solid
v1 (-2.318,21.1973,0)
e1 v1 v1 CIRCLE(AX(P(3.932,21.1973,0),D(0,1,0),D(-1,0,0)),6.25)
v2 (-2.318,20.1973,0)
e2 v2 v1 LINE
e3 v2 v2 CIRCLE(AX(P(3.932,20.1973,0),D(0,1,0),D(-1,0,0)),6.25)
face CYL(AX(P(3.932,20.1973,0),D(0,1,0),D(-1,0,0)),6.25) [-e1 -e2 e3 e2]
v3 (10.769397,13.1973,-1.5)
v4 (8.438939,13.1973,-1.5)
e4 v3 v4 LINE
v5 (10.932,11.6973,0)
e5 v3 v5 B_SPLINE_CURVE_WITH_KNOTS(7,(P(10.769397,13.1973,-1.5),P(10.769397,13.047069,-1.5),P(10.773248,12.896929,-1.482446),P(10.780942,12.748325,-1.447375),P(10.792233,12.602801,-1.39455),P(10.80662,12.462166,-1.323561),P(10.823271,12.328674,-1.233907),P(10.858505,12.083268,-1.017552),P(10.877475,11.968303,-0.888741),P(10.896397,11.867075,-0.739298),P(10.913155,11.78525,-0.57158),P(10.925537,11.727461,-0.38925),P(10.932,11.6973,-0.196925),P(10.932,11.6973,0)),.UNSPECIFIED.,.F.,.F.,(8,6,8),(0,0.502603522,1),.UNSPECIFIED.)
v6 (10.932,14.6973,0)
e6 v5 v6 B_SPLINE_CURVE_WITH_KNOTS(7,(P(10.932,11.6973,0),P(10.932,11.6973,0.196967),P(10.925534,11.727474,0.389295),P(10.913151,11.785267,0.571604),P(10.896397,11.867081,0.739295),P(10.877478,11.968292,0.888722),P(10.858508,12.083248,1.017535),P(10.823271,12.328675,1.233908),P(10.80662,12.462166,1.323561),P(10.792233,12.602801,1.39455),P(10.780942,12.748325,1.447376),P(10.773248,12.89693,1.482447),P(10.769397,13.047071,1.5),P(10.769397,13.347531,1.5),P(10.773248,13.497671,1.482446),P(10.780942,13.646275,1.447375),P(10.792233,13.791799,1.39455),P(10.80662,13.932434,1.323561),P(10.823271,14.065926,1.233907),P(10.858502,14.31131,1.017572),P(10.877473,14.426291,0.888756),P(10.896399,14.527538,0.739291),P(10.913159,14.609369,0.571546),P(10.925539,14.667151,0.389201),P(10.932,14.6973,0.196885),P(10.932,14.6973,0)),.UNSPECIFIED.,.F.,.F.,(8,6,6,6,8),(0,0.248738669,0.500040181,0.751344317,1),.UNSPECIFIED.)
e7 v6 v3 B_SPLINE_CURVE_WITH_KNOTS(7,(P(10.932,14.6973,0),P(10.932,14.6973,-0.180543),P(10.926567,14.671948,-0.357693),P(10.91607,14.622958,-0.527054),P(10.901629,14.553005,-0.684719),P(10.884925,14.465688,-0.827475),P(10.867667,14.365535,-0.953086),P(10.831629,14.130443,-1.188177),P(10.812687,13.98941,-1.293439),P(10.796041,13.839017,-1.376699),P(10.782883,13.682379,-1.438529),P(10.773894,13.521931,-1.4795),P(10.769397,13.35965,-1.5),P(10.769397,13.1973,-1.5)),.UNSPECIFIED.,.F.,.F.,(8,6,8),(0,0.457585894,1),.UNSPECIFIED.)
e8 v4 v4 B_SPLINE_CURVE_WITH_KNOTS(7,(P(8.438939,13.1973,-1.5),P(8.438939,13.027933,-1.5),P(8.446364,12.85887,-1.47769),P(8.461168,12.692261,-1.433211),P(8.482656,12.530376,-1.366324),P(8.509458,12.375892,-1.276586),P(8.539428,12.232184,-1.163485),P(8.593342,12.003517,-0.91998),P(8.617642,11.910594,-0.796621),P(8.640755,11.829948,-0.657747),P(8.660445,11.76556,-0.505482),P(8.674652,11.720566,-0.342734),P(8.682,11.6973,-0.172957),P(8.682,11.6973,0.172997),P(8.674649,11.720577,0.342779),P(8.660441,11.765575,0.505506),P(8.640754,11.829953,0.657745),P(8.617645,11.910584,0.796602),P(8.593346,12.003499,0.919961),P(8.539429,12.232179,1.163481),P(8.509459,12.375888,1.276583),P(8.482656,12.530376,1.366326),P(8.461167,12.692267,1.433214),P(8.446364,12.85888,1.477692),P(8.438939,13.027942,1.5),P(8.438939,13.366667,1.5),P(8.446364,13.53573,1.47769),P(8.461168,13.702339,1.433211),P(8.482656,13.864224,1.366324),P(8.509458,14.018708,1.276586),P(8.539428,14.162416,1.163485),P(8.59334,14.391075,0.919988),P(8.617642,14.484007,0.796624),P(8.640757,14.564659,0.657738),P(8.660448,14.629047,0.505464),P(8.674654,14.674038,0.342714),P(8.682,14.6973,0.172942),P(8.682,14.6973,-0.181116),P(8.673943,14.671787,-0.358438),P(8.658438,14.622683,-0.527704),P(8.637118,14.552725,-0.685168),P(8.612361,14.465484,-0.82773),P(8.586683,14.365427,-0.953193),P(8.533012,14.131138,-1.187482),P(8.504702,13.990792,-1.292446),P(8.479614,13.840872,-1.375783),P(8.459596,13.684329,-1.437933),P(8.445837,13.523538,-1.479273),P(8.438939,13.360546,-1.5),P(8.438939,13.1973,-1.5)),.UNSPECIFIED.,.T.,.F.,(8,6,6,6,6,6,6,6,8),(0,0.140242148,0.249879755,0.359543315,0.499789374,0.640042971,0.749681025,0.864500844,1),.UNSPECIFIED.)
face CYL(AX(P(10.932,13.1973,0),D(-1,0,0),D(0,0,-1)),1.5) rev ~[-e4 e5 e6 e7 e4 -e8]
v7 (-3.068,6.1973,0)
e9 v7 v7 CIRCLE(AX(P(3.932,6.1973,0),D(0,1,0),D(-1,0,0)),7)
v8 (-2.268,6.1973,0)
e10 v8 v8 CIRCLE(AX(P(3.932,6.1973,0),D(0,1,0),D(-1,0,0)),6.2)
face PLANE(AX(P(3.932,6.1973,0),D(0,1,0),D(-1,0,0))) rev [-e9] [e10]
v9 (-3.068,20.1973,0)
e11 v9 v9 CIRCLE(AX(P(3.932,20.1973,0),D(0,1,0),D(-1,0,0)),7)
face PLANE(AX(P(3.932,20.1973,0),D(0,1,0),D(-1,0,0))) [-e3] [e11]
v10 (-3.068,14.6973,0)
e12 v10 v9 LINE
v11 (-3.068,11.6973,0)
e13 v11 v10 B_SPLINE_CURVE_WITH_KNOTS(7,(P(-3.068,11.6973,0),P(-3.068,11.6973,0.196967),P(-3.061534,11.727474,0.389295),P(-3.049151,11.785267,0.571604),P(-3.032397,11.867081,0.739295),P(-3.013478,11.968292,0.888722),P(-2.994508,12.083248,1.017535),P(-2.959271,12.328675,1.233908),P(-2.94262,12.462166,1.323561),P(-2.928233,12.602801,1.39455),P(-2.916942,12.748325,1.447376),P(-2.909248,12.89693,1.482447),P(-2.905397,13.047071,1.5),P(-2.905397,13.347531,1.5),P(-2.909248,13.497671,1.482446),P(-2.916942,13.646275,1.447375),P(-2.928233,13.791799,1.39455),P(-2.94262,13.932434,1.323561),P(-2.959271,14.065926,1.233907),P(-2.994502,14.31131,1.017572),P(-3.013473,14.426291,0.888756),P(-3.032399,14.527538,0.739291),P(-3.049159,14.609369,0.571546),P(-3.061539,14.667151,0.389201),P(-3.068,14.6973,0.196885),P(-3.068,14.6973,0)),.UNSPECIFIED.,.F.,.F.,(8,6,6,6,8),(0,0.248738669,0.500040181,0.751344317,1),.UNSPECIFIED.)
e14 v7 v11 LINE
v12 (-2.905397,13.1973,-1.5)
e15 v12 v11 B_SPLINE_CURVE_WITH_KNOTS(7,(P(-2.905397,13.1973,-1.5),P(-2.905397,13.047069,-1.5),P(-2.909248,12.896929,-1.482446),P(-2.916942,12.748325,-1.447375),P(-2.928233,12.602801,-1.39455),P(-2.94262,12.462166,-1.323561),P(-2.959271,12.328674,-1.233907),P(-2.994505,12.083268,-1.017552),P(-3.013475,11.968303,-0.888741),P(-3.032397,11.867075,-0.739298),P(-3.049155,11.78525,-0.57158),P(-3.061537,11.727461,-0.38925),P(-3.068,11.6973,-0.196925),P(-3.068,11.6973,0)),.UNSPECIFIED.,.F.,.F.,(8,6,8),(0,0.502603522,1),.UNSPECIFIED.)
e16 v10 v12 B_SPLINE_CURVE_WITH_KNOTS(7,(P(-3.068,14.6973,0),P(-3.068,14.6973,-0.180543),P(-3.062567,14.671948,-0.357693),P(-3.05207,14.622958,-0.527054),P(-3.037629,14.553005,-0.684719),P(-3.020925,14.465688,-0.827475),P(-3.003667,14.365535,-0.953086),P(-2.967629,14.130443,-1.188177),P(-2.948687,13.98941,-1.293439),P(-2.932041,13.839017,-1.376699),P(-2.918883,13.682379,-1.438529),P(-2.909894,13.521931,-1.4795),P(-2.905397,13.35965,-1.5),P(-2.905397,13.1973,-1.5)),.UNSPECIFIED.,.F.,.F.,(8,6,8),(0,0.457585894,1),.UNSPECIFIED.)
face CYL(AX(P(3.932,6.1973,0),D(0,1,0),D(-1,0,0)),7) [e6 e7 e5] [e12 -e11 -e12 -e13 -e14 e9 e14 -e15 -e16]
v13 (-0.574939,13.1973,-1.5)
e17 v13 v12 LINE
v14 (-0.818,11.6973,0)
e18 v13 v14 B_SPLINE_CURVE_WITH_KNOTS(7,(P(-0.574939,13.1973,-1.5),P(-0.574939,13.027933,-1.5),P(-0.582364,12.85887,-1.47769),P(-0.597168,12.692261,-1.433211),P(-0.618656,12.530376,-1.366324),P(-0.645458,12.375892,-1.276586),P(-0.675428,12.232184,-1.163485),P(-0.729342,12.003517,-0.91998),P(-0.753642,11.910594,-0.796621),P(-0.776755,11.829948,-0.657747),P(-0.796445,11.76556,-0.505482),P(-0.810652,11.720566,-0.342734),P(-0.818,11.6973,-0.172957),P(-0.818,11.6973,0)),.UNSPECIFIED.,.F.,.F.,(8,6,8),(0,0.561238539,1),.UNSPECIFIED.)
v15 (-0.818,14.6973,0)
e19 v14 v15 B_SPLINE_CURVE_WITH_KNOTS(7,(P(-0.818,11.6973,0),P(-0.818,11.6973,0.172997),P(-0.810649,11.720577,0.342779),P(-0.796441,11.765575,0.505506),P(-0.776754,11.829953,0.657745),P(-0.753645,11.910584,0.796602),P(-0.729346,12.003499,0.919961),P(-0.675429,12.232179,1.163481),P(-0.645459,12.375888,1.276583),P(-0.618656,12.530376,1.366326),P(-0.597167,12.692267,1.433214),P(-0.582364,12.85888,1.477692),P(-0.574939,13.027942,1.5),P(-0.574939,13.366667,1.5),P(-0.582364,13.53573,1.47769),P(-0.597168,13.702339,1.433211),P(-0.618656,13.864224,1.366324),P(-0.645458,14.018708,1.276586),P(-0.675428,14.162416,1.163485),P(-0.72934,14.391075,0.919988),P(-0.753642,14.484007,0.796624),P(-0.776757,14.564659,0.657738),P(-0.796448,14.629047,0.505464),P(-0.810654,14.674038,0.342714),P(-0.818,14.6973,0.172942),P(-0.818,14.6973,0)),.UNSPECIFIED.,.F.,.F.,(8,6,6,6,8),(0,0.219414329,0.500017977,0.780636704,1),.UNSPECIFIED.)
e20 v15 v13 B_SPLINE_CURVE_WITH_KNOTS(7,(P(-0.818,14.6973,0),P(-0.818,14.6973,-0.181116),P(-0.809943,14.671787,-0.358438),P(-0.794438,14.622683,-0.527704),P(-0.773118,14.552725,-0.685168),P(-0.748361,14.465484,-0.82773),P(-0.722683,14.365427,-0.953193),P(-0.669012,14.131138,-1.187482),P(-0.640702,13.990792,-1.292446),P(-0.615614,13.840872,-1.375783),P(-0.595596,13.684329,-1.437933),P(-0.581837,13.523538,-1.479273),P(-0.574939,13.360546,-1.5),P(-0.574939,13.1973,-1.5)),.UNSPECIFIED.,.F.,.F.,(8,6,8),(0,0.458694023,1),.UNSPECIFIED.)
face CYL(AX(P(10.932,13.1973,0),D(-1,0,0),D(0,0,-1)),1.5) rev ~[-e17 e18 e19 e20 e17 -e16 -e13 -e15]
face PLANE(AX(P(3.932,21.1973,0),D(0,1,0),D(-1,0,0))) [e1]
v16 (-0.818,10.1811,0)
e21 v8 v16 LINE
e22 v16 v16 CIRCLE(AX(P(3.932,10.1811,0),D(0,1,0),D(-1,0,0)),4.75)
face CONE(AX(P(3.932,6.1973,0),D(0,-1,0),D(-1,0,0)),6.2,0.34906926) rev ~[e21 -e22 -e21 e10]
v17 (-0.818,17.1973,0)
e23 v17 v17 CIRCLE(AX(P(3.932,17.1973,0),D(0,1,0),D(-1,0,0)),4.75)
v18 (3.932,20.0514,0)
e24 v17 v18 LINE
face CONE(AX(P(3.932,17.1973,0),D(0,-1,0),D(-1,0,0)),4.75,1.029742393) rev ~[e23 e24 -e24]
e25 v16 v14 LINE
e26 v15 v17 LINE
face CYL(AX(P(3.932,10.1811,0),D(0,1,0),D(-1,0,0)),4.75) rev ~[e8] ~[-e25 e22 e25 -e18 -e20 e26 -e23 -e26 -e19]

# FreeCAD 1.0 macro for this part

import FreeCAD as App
import Part
import Sketcher
Q = App.Units.Quantity


def add_polygon(sketch, points):
    """Adds a closed chain of lines whose ends are joined by coincident constraints."""
    first, n = sketch.GeometryCount, len(points)
    for a, b in zip(points, points[1:] + points[:1]):
        sketch.addGeometry(Part.LineSegment(App.Vector(*a, 0), App.Vector(*b, 0)), False)
    for i in range(n):
        sketch.addConstraint(Sketcher.Constraint("Coincident", first + i, 2, first + (i + 1) % n, 1))

doc = App.newDocument("Part")
body = doc.addObject("PartDesign::Body", "Body")

# Sketch on XY plane
sketch1 = body.newObject("Sketcher::SketchObject", "Sketch")
sketch1.AttachmentSupport = (doc.getObject("XY_Plane"), [""])
sketch1.MapMode = "FlatFace"
add_polygon(sketch1, [(-3.1, 20.2), (-3.1, 6.2), (-2.3, 6.2), (-0.8, 10.2), (-0.8, 17.2), (3.9, 20.1), (3.9, 21.2), (-2.3, 21.2), (-2.3, 20.2)])  # lines 0-8
sketch1.addGeometry(Part.LineSegment(App.Vector(3.9, 6.2, 0), App.Vector(3.9, 21.2, 0)), True)  # axis
sketch1.addConstraint([
    Sketcher.Constraint("Vertical", 0),
    Sketcher.Constraint("Horizontal", 1),
    Sketcher.Constraint("Vertical", 3),
    Sketcher.Constraint("Vertical", 5),
    Sketcher.Constraint("Horizontal", 6),
    Sketcher.Constraint("Vertical", 7),
    Sketcher.Constraint("Horizontal", 8),
    Sketcher.Constraint("Vertical", 9),
    Sketcher.Constraint("Coincident", 9, 2, 5, 2),
    Sketcher.Constraint("Horizontal", 1, 2, 9, 1),
    Sketcher.Constraint("DistanceY", 0, 2, 0, 1, 14.0),
    Sketcher.Constraint("DistanceY", 7, 2, 7, 1, 1.0),
    Sketcher.Constraint("DistanceY", 1, 2, 3, 2, 11.0),
    Sketcher.Constraint("Angle", 2, Q("69.9998 deg")),
    Sketcher.Constraint("Angle", 4, Q("31 deg")),
    Sketcher.Constraint("DistanceX", 1, 1, 1, 2, 0.8),
    Sketcher.Constraint("DistanceX", 0, 2, 4, 2, 7.0),
    Sketcher.Constraint("DistanceX", 6, 2, 6, 1, 6.25),
    Sketcher.Constraint("DistanceX", 6, 2, 3, 2, 1.5),
    Sketcher.Constraint("DistanceX", 0, 2, -1, 1, 3.068),
    Sketcher.Constraint("DistanceY", -1, 1, 2, 2, 10.181),
])
revolution = body.newObject("PartDesign::Revolution", "Revolution")
revolution.Profile = sketch1
revolution.ReferenceAxis = (sketch1, ["Axis0"])
revolution.Angle = 360

# Sketch on YZ plane
sketch2 = body.newObject("Sketcher::SketchObject", "Sketch001")
sketch2.AttachmentSupport = (doc.getObject("YZ_Plane"), [""])
sketch2.MapMode = "FlatFace"
sketch2.AttachmentOffset = App.Placement(App.Vector(0, 0, 10.932), App.Rotation())
sketch2.addGeometry(Part.Circle(App.Vector(13.2, 0, 0), App.Vector(0, 0, 1), 1.5), False)
sketch2.addConstraint([
    Sketcher.Constraint("PointOnObject", 0, 3, -1),
    Sketcher.Constraint("Diameter", 0, 3.0),
    Sketcher.Constraint("DistanceX", -1, 1, 0, 3, 13.1973),
])
doc.recompute()
hole = body.newObject("PartDesign::Hole", "Hole")
hole.Profile = sketch2
hole.ThreadType = "None"
hole.Diameter = 3
hole.DepthType = "ThroughAll"

doc.recompute()
